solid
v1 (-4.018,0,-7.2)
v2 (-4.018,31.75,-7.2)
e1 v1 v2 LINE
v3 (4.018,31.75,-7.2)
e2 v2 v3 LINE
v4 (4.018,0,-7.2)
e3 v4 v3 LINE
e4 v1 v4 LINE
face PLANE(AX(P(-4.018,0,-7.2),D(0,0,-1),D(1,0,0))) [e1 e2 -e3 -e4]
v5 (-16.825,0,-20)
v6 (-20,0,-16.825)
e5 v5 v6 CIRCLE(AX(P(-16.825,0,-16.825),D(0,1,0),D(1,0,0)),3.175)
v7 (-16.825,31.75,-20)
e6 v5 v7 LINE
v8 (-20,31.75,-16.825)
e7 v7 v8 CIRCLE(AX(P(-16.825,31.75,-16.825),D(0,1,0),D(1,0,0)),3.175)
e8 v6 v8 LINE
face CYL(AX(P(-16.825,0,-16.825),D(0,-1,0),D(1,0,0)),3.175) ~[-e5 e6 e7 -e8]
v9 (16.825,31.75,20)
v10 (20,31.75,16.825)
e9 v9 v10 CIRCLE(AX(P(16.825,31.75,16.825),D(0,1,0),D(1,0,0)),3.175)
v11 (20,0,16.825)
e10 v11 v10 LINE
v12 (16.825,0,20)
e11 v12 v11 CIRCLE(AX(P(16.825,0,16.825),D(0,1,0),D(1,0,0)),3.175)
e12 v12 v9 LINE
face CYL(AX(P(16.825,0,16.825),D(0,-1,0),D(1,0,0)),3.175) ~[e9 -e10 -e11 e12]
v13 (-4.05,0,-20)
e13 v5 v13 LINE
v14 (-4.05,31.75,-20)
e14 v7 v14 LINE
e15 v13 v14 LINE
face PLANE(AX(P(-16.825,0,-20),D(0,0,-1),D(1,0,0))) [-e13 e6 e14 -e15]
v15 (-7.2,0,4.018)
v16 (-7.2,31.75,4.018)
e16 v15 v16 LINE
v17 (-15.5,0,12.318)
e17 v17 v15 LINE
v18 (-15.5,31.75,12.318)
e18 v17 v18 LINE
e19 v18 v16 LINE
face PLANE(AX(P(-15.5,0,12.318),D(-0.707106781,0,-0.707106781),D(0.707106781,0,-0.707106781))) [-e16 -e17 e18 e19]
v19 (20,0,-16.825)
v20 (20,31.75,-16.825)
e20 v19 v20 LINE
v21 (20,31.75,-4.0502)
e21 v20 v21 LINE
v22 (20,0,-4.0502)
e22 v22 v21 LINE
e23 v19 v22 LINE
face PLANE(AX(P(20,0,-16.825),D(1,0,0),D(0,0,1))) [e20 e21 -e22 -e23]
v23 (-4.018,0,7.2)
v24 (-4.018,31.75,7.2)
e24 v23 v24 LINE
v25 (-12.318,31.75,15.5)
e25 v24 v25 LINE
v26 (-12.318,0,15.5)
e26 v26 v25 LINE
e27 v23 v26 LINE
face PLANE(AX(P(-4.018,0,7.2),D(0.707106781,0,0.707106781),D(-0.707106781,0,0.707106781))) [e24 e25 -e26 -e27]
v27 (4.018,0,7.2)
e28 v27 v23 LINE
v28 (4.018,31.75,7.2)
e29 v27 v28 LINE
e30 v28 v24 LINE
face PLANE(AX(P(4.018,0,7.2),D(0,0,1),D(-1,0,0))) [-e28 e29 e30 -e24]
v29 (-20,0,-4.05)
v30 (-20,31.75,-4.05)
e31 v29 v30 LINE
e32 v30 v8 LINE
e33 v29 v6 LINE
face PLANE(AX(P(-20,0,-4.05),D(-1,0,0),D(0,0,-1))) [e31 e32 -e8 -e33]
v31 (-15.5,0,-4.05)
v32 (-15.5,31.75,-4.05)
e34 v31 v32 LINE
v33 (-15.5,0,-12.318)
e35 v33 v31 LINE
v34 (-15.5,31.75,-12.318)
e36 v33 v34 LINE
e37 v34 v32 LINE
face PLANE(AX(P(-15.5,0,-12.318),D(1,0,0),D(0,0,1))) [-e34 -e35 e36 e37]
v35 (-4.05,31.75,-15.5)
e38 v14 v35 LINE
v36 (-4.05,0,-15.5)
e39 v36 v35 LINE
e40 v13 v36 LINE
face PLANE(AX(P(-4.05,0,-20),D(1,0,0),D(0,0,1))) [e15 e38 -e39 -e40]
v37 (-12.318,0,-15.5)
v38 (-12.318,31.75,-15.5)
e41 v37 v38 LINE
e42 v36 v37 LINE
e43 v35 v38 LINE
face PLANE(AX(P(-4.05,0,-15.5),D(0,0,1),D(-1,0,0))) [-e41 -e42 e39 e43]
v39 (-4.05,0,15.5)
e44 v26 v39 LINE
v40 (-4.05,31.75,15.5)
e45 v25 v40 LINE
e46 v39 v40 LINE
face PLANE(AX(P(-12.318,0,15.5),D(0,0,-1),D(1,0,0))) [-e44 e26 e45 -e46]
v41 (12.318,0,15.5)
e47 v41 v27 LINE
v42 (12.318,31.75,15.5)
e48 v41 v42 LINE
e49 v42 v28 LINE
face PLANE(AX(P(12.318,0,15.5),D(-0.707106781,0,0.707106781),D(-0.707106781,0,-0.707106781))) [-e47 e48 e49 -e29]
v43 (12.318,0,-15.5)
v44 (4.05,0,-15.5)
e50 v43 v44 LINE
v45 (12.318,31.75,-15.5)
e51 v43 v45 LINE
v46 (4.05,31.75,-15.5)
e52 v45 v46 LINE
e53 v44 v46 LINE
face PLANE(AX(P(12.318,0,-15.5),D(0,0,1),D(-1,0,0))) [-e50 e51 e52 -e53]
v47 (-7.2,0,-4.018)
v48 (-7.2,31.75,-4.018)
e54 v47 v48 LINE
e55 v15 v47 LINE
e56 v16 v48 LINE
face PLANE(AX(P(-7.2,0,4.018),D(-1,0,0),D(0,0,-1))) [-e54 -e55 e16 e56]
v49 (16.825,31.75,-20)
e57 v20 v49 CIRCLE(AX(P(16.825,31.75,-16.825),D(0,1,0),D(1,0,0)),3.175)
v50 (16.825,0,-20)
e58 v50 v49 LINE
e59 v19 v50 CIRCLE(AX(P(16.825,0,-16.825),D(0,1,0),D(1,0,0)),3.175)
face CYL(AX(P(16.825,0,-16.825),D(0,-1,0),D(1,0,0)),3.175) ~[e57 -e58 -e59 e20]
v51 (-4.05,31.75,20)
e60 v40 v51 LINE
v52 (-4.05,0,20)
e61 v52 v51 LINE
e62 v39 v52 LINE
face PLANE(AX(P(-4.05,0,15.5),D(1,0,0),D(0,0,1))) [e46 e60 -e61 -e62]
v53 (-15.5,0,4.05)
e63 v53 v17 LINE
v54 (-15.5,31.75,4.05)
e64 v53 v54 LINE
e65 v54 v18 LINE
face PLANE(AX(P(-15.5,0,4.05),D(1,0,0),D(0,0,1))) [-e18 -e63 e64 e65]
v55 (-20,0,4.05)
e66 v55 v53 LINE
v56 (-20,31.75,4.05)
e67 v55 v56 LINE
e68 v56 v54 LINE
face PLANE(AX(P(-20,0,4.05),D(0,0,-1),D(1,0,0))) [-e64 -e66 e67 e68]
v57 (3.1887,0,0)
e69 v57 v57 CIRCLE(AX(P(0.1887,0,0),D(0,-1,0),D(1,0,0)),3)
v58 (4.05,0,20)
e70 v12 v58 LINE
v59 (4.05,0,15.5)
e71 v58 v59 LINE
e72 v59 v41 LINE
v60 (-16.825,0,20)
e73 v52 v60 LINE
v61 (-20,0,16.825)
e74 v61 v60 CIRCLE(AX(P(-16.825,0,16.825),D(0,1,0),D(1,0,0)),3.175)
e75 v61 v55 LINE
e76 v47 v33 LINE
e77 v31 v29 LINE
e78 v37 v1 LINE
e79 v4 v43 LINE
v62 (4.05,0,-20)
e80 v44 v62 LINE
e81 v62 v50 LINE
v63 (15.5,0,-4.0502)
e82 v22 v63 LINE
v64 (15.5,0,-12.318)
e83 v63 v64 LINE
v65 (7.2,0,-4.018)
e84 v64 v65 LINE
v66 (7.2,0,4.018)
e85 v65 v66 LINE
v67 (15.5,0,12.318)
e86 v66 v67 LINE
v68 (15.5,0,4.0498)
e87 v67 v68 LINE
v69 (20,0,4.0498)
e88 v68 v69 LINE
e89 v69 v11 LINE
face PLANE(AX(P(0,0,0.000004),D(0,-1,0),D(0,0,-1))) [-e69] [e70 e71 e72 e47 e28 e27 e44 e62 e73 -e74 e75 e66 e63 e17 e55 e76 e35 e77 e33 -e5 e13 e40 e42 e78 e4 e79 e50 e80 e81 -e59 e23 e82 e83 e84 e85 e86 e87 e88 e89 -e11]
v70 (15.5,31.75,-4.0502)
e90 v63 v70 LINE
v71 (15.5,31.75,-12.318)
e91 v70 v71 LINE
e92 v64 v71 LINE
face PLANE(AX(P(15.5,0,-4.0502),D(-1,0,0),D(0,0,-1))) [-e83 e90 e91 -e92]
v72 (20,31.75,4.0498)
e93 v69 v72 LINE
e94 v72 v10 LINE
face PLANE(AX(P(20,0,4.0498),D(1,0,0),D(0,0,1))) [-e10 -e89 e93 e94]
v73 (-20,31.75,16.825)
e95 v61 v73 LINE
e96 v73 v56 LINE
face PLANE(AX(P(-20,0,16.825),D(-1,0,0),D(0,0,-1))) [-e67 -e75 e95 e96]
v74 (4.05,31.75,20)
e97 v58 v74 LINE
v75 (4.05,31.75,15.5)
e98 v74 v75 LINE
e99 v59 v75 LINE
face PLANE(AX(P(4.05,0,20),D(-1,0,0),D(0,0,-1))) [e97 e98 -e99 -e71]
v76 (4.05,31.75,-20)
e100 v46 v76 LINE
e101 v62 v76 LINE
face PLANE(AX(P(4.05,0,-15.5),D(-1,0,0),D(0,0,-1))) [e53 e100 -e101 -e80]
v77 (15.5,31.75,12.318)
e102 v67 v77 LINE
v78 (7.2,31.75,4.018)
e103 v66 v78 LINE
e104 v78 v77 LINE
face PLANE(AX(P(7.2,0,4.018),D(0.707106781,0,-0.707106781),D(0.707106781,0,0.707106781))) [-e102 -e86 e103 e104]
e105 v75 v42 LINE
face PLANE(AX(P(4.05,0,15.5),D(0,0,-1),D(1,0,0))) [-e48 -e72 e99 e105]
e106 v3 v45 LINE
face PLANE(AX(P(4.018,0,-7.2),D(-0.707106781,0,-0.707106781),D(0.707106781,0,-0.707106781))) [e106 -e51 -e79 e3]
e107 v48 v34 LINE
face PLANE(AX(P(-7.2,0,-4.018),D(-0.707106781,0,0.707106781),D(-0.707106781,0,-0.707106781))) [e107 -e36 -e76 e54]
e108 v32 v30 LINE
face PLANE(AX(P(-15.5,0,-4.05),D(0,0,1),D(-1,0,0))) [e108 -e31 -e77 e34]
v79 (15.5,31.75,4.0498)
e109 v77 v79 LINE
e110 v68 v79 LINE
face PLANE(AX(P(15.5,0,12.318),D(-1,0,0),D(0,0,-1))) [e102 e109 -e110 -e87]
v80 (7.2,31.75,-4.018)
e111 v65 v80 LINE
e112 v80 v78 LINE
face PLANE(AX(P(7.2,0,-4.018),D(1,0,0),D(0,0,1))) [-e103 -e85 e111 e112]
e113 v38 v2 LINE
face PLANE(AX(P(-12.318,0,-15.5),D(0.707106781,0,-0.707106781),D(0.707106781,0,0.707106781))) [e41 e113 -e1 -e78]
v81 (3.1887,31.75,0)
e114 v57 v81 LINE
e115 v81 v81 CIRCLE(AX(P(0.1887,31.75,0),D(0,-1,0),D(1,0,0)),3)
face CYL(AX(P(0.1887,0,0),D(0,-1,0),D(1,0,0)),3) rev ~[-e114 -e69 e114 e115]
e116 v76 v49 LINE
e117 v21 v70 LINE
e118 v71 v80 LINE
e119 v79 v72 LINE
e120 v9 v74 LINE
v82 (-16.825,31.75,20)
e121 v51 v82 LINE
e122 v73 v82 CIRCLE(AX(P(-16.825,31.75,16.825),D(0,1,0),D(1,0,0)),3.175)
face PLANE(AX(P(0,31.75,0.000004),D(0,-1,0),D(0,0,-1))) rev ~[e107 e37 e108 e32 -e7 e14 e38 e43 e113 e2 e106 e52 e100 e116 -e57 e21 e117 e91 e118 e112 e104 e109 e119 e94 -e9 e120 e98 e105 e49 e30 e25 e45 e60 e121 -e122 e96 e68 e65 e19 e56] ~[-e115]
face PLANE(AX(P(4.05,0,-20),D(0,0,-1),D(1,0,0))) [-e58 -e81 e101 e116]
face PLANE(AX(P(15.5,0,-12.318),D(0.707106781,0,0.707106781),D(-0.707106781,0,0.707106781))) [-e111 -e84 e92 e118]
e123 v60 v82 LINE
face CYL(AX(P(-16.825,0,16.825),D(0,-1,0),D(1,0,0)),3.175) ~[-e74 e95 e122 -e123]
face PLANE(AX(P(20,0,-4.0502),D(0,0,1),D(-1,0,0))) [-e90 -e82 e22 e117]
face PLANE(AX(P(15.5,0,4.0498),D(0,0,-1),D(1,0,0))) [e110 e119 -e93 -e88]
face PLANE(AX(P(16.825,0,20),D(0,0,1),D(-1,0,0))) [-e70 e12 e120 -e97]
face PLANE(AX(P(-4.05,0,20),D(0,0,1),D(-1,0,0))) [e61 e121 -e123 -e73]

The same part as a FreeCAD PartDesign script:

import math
import FreeCAD as App
import Part
import Sketcher
Q = App.Units.Quantity

doc = App.newDocument("Part")
params = doc.addObject("Spreadsheet::Sheet", "Params")
for row, (alias, value) in enumerate([
    ("sketch1_diameter", "6 mm"),
    ("sketch1_width", "4.5 mm"),
    ("pad1_length", "31.75 mm"),
], start=1):
    params.set(f"A{row}", alias)
    params.set(f"B{row}", "=" + value)
    params.setAlias(f"B{row}", alias)

body = doc.addObject("PartDesign::Body", "Body")

# Sketch on XZ plane
sketch1 = body.newObject("Sketcher::SketchObject", "Sketch")
sketch1.AttachmentSupport = (doc.getObject("XZ_Plane"), [""])
sketch1.MapMode = "FlatFace"
sketch1.addGeometry(Part.ArcOfCircle(Part.Circle(App.Vector(-16.8, -16.8, 0), App.Vector(0, 0, 1), 3.2), math.radians(180), math.radians(270)), False)
sketch1.addGeometry(Part.LineSegment(App.Vector(-16.8, -20, 0), App.Vector(-4, -20, 0)), False)
sketch1.addGeometry(Part.LineSegment(App.Vector(-4, -20, 0), App.Vector(-4, -15.5, 0)), False)
sketch1.addGeometry(Part.LineSegment(App.Vector(-4, -15.5, 0), App.Vector(-12.3, -15.5, 0)), False)
sketch1.addGeometry(Part.LineSegment(App.Vector(-12.3, -15.5, 0), App.Vector(-4, -7.2, 0)), False)
sketch1.addGeometry(Part.LineSegment(App.Vector(-4, -7.2, 0), App.Vector(4, -7.2, 0)), False)
sketch1.addGeometry(Part.LineSegment(App.Vector(4, -7.2, 0), App.Vector(12.3, -15.5, 0)), False)
sketch1.addGeometry(Part.LineSegment(App.Vector(12.3, -15.5, 0), App.Vector(4, -15.5, 0)), False)
sketch1.addGeometry(Part.LineSegment(App.Vector(4, -15.5, 0), App.Vector(4, -20, 0)), False)
sketch1.addGeometry(Part.LineSegment(App.Vector(4, -20, 0), App.Vector(16.8, -20, 0)), False)
sketch1.addGeometry(Part.ArcOfCircle(Part.Circle(App.Vector(16.8, -16.8, 0), App.Vector(0, 0, 1), 3.2), math.radians(-90), math.radians(0)), False)
sketch1.addGeometry(Part.LineSegment(App.Vector(20, -16.8, 0), App.Vector(20, -4.1, 0)), False)
sketch1.addGeometry(Part.LineSegment(App.Vector(20, -4.1, 0), App.Vector(15.5, -4.1, 0)), False)
sketch1.addGeometry(Part.LineSegment(App.Vector(15.5, -4.1, 0), App.Vector(15.5, -12.3, 0)), False)
sketch1.addGeometry(Part.LineSegment(App.Vector(15.5, -12.3, 0), App.Vector(7.2, -4, 0)), False)
sketch1.addGeometry(Part.LineSegment(App.Vector(7.2, -4, 0), App.Vector(7.2, 4, 0)), False)
sketch1.addGeometry(Part.LineSegment(App.Vector(7.2, 4, 0), App.Vector(15.5, 12.3, 0)), False)
sketch1.addGeometry(Part.LineSegment(App.Vector(15.5, 12.3, 0), App.Vector(15.5, 4, 0)), False)
sketch1.addGeometry(Part.LineSegment(App.Vector(15.5, 4, 0), App.Vector(20, 4, 0)), False)
sketch1.addGeometry(Part.LineSegment(App.Vector(20, 4, 0), App.Vector(20, 16.8, 0)), False)
sketch1.addGeometry(Part.ArcOfCircle(Part.Circle(App.Vector(16.8, 16.8, 0), App.Vector(0, 0, 1), 3.2), math.radians(0), math.radians(90)), False)
sketch1.addGeometry(Part.LineSegment(App.Vector(16.8, 20, 0), App.Vector(4, 20, 0)), False)
sketch1.addGeometry(Part.LineSegment(App.Vector(4, 20, 0), App.Vector(4, 15.5, 0)), False)
sketch1.addGeometry(Part.LineSegment(App.Vector(4, 15.5, 0), App.Vector(12.3, 15.5, 0)), False)
sketch1.addGeometry(Part.LineSegment(App.Vector(12.3, 15.5, 0), App.Vector(4, 7.2, 0)), False)
sketch1.addGeometry(Part.LineSegment(App.Vector(4, 7.2, 0), App.Vector(-4, 7.2, 0)), False)
sketch1.addGeometry(Part.LineSegment(App.Vector(-4, 7.2, 0), App.Vector(-12.3, 15.5, 0)), False)
sketch1.addGeometry(Part.LineSegment(App.Vector(-12.3, 15.5, 0), App.Vector(-4, 15.5, 0)), False)
sketch1.addGeometry(Part.LineSegment(App.Vector(-4, 15.5, 0), App.Vector(-4, 20, 0)), False)
sketch1.addGeometry(Part.LineSegment(App.Vector(-4, 20, 0), App.Vector(-16.8, 20, 0)), False)
sketch1.addGeometry(Part.ArcOfCircle(Part.Circle(App.Vector(-16.8, 16.8, 0), App.Vector(0, 0, 1), 3.2), math.radians(90), math.radians(180)), False)
sketch1.addGeometry(Part.LineSegment(App.Vector(-20, 16.8, 0), App.Vector(-20, 4, 0)), False)
sketch1.addGeometry(Part.LineSegment(App.Vector(-20, 4, 0), App.Vector(-15.5, 4, 0)), False)
sketch1.addGeometry(Part.LineSegment(App.Vector(-15.5, 4, 0), App.Vector(-15.5, 12.3, 0)), False)
sketch1.addGeometry(Part.LineSegment(App.Vector(-15.5, 12.3, 0), App.Vector(-7.2, 4, 0)), False)
sketch1.addGeometry(Part.LineSegment(App.Vector(-7.2, 4, 0), App.Vector(-7.2, -4, 0)), False)
sketch1.addGeometry(Part.LineSegment(App.Vector(-7.2, -4, 0), App.Vector(-15.5, -12.3, 0)), False)
sketch1.addGeometry(Part.LineSegment(App.Vector(-15.5, -12.3, 0), App.Vector(-15.5, -4, 0)), False)
sketch1.addGeometry(Part.LineSegment(App.Vector(-15.5, -4, 0), App.Vector(-20, -4, 0)), False)
sketch1.addGeometry(Part.LineSegment(App.Vector(-20, -4, 0), App.Vector(-20, -16.8, 0)), False)
sketch1.addGeometry(Part.Circle(App.Vector(0.2, 0, 0), App.Vector(0, 0, 1), 3), False)
sketch1.addConstraint(Sketcher.Constraint("Tangent", 0, 2, 1, 1))
sketch1.addConstraint(Sketcher.Constraint("Coincident", 1, 2, 2, 1))
sketch1.addConstraint(Sketcher.Constraint("Coincident", 2, 2, 3, 1))
sketch1.addConstraint(Sketcher.Constraint("Coincident", 3, 2, 4, 1))
sketch1.addConstraint(Sketcher.Constraint("Coincident", 4, 2, 5, 1))
sketch1.addConstraint(Sketcher.Constraint("Coincident", 5, 2, 6, 1))
sketch1.addConstraint(Sketcher.Constraint("Coincident", 6, 2, 7, 1))
sketch1.addConstraint(Sketcher.Constraint("Coincident", 7, 2, 8, 1))
sketch1.addConstraint(Sketcher.Constraint("Coincident", 8, 2, 9, 1))
sketch1.addConstraint(Sketcher.Constraint("Tangent", 9, 2, 10, 1))
sketch1.addConstraint(Sketcher.Constraint("Tangent", 10, 2, 11, 1))
sketch1.addConstraint(Sketcher.Constraint("Coincident", 11, 2, 12, 1))
sketch1.addConstraint(Sketcher.Constraint("Coincident", 12, 2, 13, 1))
sketch1.addConstraint(Sketcher.Constraint("Coincident", 13, 2, 14, 1))
sketch1.addConstraint(Sketcher.Constraint("Coincident", 14, 2, 15, 1))
sketch1.addConstraint(Sketcher.Constraint("Coincident", 15, 2, 16, 1))
sketch1.addConstraint(Sketcher.Constraint("Coincident", 16, 2, 17, 1))
sketch1.addConstraint(Sketcher.Constraint("Coincident", 17, 2, 18, 1))
sketch1.addConstraint(Sketcher.Constraint("Coincident", 18, 2, 19, 1))
sketch1.addConstraint(Sketcher.Constraint("Tangent", 19, 2, 20, 1))
sketch1.addConstraint(Sketcher.Constraint("Tangent", 20, 2, 21, 1))
sketch1.addConstraint(Sketcher.Constraint("Coincident", 21, 2, 22, 1))
sketch1.addConstraint(Sketcher.Constraint("Coincident", 22, 2, 23, 1))
sketch1.addConstraint(Sketcher.Constraint("Coincident", 23, 2, 24, 1))
sketch1.addConstraint(Sketcher.Constraint("Coincident", 24, 2, 25, 1))
sketch1.addConstraint(Sketcher.Constraint("Coincident", 25, 2, 26, 1))
sketch1.addConstraint(Sketcher.Constraint("Coincident", 26, 2, 27, 1))
sketch1.addConstraint(Sketcher.Constraint("Coincident", 27, 2, 28, 1))
sketch1.addConstraint(Sketcher.Constraint("Coincident", 28, 2, 29, 1))
sketch1.addConstraint(Sketcher.Constraint("Tangent", 29, 2, 30, 1))
sketch1.addConstraint(Sketcher.Constraint("Tangent", 30, 2, 31, 1))
sketch1.addConstraint(Sketcher.Constraint("Coincident", 31, 2, 32, 1))
sketch1.addConstraint(Sketcher.Constraint("Coincident", 32, 2, 33, 1))
sketch1.addConstraint(Sketcher.Constraint("Coincident", 33, 2, 34, 1))
sketch1.addConstraint(Sketcher.Constraint("Coincident", 34, 2, 35, 1))
sketch1.addConstraint(Sketcher.Constraint("Coincident", 35, 2, 36, 1))
sketch1.addConstraint(Sketcher.Constraint("Coincident", 36, 2, 37, 1))
sketch1.addConstraint(Sketcher.Constraint("Coincident", 37, 2, 38, 1))
sketch1.addConstraint(Sketcher.Constraint("Coincident", 38, 2, 39, 1))
sketch1.addConstraint(Sketcher.Constraint("Tangent", 39, 2, 0, 1))
sketch1.addConstraint(Sketcher.Constraint("Horizontal", 1))
sketch1.addConstraint(Sketcher.Constraint("Vertical", 2))
sketch1.addConstraint(Sketcher.Constraint("Horizontal", 3))
sketch1.addConstraint(Sketcher.Constraint("Horizontal", 5))
sketch1.addConstraint(Sketcher.Constraint("Horizontal", 7))
sketch1.addConstraint(Sketcher.Constraint("Vertical", 8))
sketch1.addConstraint(Sketcher.Constraint("Horizontal", 9))
sketch1.addConstraint(Sketcher.Constraint("Vertical", 11))
sketch1.addConstraint(Sketcher.Constraint("Horizontal", 12))
sketch1.addConstraint(Sketcher.Constraint("Vertical", 13))
sketch1.addConstraint(Sketcher.Constraint("Vertical", 15))
sketch1.addConstraint(Sketcher.Constraint("Vertical", 17))
sketch1.addConstraint(Sketcher.Constraint("Horizontal", 18))
sketch1.addConstraint(Sketcher.Constraint("Vertical", 19))
sketch1.addConstraint(Sketcher.Constraint("Horizontal", 21))
sketch1.addConstraint(Sketcher.Constraint("Vertical", 22))
sketch1.addConstraint(Sketcher.Constraint("Horizontal", 23))
sketch1.addConstraint(Sketcher.Constraint("Horizontal", 25))
sketch1.addConstraint(Sketcher.Constraint("Horizontal", 27))
sketch1.addConstraint(Sketcher.Constraint("Vertical", 28))
sketch1.addConstraint(Sketcher.Constraint("Horizontal", 29))
sketch1.addConstraint(Sketcher.Constraint("Vertical", 31))
sketch1.addConstraint(Sketcher.Constraint("Horizontal", 32))
sketch1.addConstraint(Sketcher.Constraint("Vertical", 33))
sketch1.addConstraint(Sketcher.Constraint("Vertical", 35))
sketch1.addConstraint(Sketcher.Constraint("Vertical", 37))
sketch1.addConstraint(Sketcher.Constraint("Horizontal", 38))
sketch1.addConstraint(Sketcher.Constraint("Vertical", 39))
sketch1.addConstraint(Sketcher.Constraint("Equal", 0, 10))
sketch1.addConstraint(Sketcher.Constraint("Equal", 10, 20))
sketch1.addConstraint(Sketcher.Constraint("Equal", 20, 30))
sketch1.addConstraint(Sketcher.Constraint("Symmetric", 0, 3, 20, 3, -1, 1))
sketch1.addConstraint(Sketcher.Constraint("Symmetric", 10, 3, 30, 3, -1, 1))
sketch1.addConstraint(Sketcher.Constraint("Symmetric", 2, 2, 22, 2, -1, 1))
sketch1.addConstraint(Sketcher.Constraint("Symmetric", 4, 2, 24, 2, -1, 1))
sketch1.addConstraint(Sketcher.Constraint("Symmetric", 6, 2, 26, 2, -1, 1))
sketch1.addConstraint(Sketcher.Constraint("Symmetric", 12, 2, 32, 2, -1, 1))
sketch1.addConstraint(Sketcher.Constraint("Symmetric", 14, 2, 34, 2, -1, 1))
sketch1.addConstraint(Sketcher.Constraint("Symmetric", 16, 2, 36, 2, -1, 1))
sketch1.addConstraint(Sketcher.Constraint("Symmetric", 0, 3, 10, 3, -2))
sketch1.addConstraint(Sketcher.Constraint("Symmetric", 3, 2, 6, 2, -2))
sketch1.addConstraint(Sketcher.Constraint("Symmetric", 17, 2, 32, 2, -2))
sketch1.addConstraint(Sketcher.Constraint("PointOnObject", 40, 3, -1))
sketch1.addConstraint(Sketcher.Constraint("Perpendicular", 4, 6))
sketch1.addConstraint(Sketcher.Constraint("Parallel", 6, 14))
sketch1.addConstraint(Sketcher.Constraint("Perpendicular", 14, 16))
sketch1.addConstraint(Sketcher.Constraint("Parallel", 16, 24))
sketch1.addConstraint(Sketcher.Constraint("Perpendicular", 24, 26))
sketch1.addConstraint(Sketcher.Constraint("Parallel", 26, 34))
sketch1.addConstraint(Sketcher.Constraint("Perpendicular", 34, 36))
sketch1.addConstraint(Sketcher.Constraint("Horizontal", 16, 2, 33, 2))
sketch1.addConstraint(Sketcher.Constraint("Horizontal", 15, 2, 34, 2))
sketch1.addConstraint(Sketcher.Constraint("Vertical", 8, 2, 21, 2))
sketch1.addConstraint(Sketcher.Constraint("Vertical", 2, 2, 27, 2))
sketch1.addConstraint(Sketcher.Constraint("Equal", 38, 2))
sketch1.addConstraint(Sketcher.Constraint("Equal", 29, 11))
sketch1.addConstraint(Sketcher.Constraint("Equal", 25, 15))
sketch1.addConstraint(Sketcher.Constraint("Equal", 27, 17))
sketch1.addConstraint(Sketcher.Constraint("Equal", 33, 37))
sketch1.addConstraint(Sketcher.Constraint("Equal", 6, 14))
sketch1.addConstraint(Sketcher.Constraint("Diameter", 40, Q("6 mm")))
sketch1.addConstraint(Sketcher.Constraint("DistanceX", 12, 2, 12, 1, Q("4.5 mm")))
sketch1.addConstraint(Sketcher.Constraint("DistanceY", 0, 2, -1, 1, Q("20 mm")))
sketch1.addConstraint(Sketcher.Constraint("Radius", 0, Q("3.175 mm")))
sketch1.addConstraint(Sketcher.Constraint("DistanceY", 4, 2, -1, 1, Q("7.2 mm")))
sketch1.addConstraint(Sketcher.Constraint("DistanceX", 2, 2, 7, 2, Q("8.1 mm")))
sketch1.addConstraint(Sketcher.Constraint("DistanceX", 3, 2, 3, 1, Q("8.268 mm")))
sketch1.addConstraint(Sketcher.Constraint("DistanceX", -1, 1, 40, 3, Q("0.1887 mm")))
sketch1.setExpression("Constraints[100]", "Params.sketch1_diameter")
sketch1.setExpression("Constraints[101]", "Params.sketch1_width")
pad1 = body.newObject("PartDesign::Pad", "Pad")
pad1.Profile = sketch1
pad1.setExpression("Length", "Params.pad1_length")
pad1.Reversed = True

doc.recompute()
